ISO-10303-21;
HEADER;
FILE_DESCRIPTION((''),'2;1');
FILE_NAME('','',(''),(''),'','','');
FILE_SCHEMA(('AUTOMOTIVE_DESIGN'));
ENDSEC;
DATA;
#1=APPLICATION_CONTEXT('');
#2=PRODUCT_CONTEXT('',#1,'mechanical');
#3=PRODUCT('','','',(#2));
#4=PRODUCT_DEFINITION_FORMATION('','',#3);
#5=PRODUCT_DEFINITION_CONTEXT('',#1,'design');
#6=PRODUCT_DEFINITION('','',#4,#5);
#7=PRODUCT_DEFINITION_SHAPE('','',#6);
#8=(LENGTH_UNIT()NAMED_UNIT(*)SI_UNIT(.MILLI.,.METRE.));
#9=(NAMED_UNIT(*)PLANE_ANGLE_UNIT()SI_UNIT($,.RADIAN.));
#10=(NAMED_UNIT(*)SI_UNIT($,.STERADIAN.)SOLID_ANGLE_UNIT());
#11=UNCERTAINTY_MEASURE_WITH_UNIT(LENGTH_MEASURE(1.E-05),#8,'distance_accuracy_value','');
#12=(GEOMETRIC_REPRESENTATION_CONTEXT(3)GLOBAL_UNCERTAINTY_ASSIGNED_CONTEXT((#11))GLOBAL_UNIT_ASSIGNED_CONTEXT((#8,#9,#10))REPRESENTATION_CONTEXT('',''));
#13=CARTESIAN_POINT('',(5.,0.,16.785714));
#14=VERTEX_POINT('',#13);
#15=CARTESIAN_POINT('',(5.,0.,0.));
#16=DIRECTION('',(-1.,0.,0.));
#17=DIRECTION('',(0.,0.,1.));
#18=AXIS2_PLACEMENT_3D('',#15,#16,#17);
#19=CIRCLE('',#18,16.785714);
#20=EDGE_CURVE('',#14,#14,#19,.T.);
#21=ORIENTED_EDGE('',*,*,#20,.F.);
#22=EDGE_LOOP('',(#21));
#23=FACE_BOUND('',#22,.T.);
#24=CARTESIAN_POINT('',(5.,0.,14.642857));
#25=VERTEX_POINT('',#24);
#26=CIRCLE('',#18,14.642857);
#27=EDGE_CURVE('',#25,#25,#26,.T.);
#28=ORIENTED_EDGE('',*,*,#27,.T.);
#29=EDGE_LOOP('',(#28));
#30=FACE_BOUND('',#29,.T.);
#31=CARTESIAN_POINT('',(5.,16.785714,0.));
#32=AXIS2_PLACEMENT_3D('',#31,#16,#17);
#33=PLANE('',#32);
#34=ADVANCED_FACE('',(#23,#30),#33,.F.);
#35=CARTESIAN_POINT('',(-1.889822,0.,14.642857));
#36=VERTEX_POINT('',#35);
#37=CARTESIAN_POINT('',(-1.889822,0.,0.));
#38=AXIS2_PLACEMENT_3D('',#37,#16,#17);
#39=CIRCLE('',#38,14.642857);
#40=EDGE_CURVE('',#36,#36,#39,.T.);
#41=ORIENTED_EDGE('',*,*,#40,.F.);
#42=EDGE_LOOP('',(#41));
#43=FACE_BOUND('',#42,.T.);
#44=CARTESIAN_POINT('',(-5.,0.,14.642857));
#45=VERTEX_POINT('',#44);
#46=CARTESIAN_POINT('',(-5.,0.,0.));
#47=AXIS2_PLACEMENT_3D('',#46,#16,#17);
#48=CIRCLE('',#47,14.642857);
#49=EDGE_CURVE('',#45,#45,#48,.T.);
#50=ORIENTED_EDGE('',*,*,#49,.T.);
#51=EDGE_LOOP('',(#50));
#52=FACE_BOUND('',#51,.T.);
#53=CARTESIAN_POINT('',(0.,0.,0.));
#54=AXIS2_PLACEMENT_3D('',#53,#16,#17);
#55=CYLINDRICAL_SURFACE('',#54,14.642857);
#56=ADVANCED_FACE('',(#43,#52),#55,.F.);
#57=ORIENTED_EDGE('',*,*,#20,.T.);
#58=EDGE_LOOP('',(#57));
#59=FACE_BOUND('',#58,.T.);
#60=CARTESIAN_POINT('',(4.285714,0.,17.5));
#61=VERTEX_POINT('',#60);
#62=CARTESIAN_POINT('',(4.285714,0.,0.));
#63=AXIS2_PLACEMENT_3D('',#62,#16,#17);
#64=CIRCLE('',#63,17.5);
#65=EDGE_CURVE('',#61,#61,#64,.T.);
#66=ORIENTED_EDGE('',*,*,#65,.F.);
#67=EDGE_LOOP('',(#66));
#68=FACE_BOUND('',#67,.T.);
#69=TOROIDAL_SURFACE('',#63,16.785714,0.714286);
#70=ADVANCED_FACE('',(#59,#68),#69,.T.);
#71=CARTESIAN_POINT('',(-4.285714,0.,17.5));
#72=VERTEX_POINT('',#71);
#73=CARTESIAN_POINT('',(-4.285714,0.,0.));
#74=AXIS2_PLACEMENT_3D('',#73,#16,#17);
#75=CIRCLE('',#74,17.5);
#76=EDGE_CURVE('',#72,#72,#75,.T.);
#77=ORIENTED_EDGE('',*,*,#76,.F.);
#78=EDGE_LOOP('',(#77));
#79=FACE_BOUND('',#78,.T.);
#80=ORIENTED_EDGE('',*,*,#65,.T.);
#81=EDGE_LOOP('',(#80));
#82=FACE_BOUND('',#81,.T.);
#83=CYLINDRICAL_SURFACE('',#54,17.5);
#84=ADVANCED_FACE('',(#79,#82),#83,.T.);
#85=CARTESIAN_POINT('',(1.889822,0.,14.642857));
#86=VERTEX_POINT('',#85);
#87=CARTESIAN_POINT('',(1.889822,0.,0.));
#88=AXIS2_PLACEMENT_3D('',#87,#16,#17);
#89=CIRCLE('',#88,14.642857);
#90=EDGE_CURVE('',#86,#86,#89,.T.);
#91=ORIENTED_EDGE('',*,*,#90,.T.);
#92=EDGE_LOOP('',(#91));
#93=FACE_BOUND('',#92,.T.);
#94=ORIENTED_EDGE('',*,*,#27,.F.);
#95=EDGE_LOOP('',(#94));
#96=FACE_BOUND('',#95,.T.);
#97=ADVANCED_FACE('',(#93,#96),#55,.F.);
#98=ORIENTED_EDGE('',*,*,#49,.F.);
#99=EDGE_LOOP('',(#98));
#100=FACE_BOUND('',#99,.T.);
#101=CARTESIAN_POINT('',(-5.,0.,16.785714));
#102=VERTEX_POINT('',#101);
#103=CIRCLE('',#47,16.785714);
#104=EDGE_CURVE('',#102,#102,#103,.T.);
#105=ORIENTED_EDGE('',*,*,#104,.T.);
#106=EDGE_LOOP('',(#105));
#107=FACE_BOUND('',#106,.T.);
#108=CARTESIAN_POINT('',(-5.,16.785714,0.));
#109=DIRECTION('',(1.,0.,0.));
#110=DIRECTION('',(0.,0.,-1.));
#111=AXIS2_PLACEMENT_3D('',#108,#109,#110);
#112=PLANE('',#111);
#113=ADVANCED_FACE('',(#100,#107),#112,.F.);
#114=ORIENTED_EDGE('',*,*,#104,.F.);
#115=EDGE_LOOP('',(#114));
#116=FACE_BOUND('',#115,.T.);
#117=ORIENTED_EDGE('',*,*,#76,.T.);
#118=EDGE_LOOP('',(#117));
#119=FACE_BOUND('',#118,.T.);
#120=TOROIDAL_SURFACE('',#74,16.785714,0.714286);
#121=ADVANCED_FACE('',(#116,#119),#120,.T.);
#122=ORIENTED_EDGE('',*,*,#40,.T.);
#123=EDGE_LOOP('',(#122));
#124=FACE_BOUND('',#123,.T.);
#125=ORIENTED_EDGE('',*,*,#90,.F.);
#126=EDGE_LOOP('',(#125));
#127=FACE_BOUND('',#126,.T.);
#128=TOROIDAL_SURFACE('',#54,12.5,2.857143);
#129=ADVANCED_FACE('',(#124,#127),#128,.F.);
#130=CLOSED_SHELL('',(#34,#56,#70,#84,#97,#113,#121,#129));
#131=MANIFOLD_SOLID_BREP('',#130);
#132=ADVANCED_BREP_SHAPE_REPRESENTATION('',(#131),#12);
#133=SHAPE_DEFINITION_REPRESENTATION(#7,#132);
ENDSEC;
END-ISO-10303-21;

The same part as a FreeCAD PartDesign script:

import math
import FreeCAD as App
import Part
import Sketcher
Q = App.Units.Quantity

doc = App.newDocument("Part")
body = doc.addObject("PartDesign::Body", "Body")

# Sketch on XY plane
sketch1 = body.newObject("Sketcher::SketchObject", "Sketch")
sketch1.AttachmentSupport = (doc.getObject("XY_Plane"), [""])
sketch1.MapMode = "FlatFace"
sketch1.addGeometry(Part.LineSegment(App.Vector(4.285714, 17.5, 0), App.Vector(-4.285714, 17.5, 0)), False)
sketch1.addGeometry(Part.ArcOfCircle(Part.Circle(App.Vector(-4.285714, 16.785714, 0), App.Vector(0, 0, 1), 0.714286), math.radians(90), math.radians(180)), False)
sketch1.addGeometry(Part.LineSegment(App.Vector(-5, 16.785714, 0), App.Vector(-5, 14.642857, 0)), False)
sketch1.addGeometry(Part.LineSegment(App.Vector(-5, 14.642857, 0), App.Vector(-1.889822, 14.642857, 0)), False)
sketch1.addGeometry(Part.ArcOfCircle(Part.Circle(App.Vector(0, 12.5, 0), App.Vector(0, 0, 1), 2.857143), math.radians(48.590378), math.radians(131.409622)), False)
sketch1.addGeometry(Part.LineSegment(App.Vector(1.889822, 14.642857, 0), App.Vector(5, 14.642857, 0)), False)
sketch1.addGeometry(Part.LineSegment(App.Vector(5, 14.642857, 0), App.Vector(5, 16.785714, 0)), False)
sketch1.addGeometry(Part.ArcOfCircle(Part.Circle(App.Vector(4.285714, 16.785714, 0), App.Vector(0, 0, 1), 0.714286), math.radians(0), math.radians(90)), False)
sketch1.addConstraint(Sketcher.Constraint("Tangent", 0, 2, 1, 1))
sketch1.addConstraint(Sketcher.Constraint("Tangent", 1, 2, 2, 1))
sketch1.addConstraint(Sketcher.Constraint("Coincident", 2, 2, 3, 1))
sketch1.addConstraint(Sketcher.Constraint("Coincident", 3, 2, 4, 2))
sketch1.addConstraint(Sketcher.Constraint("Coincident", 4, 1, 5, 1))
sketch1.addConstraint(Sketcher.Constraint("Coincident", 5, 2, 6, 1))
sketch1.addConstraint(Sketcher.Constraint("Tangent", 6, 2, 7, 1))
sketch1.addConstraint(Sketcher.Constraint("Tangent", 7, 2, 0, 1))
sketch1.addConstraint(Sketcher.Constraint("Horizontal", 0))
sketch1.addConstraint(Sketcher.Constraint("Vertical", 2))
sketch1.addConstraint(Sketcher.Constraint("Horizontal", 3))
sketch1.addConstraint(Sketcher.Constraint("Horizontal", 5))
sketch1.addConstraint(Sketcher.Constraint("Vertical", 6))
sketch1.addConstraint(Sketcher.Constraint("Equal", 1, 7))
sketch1.addConstraint(Sketcher.Constraint("Symmetric", 3, 2, 4, 1, -2))
sketch1.addConstraint(Sketcher.Constraint("Equal", 3, 5))
sketch1.addConstraint(Sketcher.Constraint("DistanceX", 1, 2, -1, 1, Q("5 mm")))
sketch1.addConstraint(Sketcher.Constraint("DistanceY", 4, 3, 0, 2, Q("5 mm")))
sketch1.addConstraint(Sketcher.Constraint("DistanceY", -1, 1, 4, 3, Q("12.5 mm")))
sketch1.addConstraint(Sketcher.Constraint("Radius", 1, Q("0.714286 mm")))
sketch1.addConstraint(Sketcher.Constraint("Radius", 4, Q("2.857143 mm")))
sketch1.addConstraint(Sketcher.Constraint("DistanceX", 3, 1, 3, 2, Q("3.110178 mm")))
revolution = body.newObject("PartDesign::Revolution", "Revolution")
revolution.Profile = sketch1
revolution.ReferenceAxis = (sketch1, ["H_Axis"])
revolution.Angle = 360

doc.recompute()
